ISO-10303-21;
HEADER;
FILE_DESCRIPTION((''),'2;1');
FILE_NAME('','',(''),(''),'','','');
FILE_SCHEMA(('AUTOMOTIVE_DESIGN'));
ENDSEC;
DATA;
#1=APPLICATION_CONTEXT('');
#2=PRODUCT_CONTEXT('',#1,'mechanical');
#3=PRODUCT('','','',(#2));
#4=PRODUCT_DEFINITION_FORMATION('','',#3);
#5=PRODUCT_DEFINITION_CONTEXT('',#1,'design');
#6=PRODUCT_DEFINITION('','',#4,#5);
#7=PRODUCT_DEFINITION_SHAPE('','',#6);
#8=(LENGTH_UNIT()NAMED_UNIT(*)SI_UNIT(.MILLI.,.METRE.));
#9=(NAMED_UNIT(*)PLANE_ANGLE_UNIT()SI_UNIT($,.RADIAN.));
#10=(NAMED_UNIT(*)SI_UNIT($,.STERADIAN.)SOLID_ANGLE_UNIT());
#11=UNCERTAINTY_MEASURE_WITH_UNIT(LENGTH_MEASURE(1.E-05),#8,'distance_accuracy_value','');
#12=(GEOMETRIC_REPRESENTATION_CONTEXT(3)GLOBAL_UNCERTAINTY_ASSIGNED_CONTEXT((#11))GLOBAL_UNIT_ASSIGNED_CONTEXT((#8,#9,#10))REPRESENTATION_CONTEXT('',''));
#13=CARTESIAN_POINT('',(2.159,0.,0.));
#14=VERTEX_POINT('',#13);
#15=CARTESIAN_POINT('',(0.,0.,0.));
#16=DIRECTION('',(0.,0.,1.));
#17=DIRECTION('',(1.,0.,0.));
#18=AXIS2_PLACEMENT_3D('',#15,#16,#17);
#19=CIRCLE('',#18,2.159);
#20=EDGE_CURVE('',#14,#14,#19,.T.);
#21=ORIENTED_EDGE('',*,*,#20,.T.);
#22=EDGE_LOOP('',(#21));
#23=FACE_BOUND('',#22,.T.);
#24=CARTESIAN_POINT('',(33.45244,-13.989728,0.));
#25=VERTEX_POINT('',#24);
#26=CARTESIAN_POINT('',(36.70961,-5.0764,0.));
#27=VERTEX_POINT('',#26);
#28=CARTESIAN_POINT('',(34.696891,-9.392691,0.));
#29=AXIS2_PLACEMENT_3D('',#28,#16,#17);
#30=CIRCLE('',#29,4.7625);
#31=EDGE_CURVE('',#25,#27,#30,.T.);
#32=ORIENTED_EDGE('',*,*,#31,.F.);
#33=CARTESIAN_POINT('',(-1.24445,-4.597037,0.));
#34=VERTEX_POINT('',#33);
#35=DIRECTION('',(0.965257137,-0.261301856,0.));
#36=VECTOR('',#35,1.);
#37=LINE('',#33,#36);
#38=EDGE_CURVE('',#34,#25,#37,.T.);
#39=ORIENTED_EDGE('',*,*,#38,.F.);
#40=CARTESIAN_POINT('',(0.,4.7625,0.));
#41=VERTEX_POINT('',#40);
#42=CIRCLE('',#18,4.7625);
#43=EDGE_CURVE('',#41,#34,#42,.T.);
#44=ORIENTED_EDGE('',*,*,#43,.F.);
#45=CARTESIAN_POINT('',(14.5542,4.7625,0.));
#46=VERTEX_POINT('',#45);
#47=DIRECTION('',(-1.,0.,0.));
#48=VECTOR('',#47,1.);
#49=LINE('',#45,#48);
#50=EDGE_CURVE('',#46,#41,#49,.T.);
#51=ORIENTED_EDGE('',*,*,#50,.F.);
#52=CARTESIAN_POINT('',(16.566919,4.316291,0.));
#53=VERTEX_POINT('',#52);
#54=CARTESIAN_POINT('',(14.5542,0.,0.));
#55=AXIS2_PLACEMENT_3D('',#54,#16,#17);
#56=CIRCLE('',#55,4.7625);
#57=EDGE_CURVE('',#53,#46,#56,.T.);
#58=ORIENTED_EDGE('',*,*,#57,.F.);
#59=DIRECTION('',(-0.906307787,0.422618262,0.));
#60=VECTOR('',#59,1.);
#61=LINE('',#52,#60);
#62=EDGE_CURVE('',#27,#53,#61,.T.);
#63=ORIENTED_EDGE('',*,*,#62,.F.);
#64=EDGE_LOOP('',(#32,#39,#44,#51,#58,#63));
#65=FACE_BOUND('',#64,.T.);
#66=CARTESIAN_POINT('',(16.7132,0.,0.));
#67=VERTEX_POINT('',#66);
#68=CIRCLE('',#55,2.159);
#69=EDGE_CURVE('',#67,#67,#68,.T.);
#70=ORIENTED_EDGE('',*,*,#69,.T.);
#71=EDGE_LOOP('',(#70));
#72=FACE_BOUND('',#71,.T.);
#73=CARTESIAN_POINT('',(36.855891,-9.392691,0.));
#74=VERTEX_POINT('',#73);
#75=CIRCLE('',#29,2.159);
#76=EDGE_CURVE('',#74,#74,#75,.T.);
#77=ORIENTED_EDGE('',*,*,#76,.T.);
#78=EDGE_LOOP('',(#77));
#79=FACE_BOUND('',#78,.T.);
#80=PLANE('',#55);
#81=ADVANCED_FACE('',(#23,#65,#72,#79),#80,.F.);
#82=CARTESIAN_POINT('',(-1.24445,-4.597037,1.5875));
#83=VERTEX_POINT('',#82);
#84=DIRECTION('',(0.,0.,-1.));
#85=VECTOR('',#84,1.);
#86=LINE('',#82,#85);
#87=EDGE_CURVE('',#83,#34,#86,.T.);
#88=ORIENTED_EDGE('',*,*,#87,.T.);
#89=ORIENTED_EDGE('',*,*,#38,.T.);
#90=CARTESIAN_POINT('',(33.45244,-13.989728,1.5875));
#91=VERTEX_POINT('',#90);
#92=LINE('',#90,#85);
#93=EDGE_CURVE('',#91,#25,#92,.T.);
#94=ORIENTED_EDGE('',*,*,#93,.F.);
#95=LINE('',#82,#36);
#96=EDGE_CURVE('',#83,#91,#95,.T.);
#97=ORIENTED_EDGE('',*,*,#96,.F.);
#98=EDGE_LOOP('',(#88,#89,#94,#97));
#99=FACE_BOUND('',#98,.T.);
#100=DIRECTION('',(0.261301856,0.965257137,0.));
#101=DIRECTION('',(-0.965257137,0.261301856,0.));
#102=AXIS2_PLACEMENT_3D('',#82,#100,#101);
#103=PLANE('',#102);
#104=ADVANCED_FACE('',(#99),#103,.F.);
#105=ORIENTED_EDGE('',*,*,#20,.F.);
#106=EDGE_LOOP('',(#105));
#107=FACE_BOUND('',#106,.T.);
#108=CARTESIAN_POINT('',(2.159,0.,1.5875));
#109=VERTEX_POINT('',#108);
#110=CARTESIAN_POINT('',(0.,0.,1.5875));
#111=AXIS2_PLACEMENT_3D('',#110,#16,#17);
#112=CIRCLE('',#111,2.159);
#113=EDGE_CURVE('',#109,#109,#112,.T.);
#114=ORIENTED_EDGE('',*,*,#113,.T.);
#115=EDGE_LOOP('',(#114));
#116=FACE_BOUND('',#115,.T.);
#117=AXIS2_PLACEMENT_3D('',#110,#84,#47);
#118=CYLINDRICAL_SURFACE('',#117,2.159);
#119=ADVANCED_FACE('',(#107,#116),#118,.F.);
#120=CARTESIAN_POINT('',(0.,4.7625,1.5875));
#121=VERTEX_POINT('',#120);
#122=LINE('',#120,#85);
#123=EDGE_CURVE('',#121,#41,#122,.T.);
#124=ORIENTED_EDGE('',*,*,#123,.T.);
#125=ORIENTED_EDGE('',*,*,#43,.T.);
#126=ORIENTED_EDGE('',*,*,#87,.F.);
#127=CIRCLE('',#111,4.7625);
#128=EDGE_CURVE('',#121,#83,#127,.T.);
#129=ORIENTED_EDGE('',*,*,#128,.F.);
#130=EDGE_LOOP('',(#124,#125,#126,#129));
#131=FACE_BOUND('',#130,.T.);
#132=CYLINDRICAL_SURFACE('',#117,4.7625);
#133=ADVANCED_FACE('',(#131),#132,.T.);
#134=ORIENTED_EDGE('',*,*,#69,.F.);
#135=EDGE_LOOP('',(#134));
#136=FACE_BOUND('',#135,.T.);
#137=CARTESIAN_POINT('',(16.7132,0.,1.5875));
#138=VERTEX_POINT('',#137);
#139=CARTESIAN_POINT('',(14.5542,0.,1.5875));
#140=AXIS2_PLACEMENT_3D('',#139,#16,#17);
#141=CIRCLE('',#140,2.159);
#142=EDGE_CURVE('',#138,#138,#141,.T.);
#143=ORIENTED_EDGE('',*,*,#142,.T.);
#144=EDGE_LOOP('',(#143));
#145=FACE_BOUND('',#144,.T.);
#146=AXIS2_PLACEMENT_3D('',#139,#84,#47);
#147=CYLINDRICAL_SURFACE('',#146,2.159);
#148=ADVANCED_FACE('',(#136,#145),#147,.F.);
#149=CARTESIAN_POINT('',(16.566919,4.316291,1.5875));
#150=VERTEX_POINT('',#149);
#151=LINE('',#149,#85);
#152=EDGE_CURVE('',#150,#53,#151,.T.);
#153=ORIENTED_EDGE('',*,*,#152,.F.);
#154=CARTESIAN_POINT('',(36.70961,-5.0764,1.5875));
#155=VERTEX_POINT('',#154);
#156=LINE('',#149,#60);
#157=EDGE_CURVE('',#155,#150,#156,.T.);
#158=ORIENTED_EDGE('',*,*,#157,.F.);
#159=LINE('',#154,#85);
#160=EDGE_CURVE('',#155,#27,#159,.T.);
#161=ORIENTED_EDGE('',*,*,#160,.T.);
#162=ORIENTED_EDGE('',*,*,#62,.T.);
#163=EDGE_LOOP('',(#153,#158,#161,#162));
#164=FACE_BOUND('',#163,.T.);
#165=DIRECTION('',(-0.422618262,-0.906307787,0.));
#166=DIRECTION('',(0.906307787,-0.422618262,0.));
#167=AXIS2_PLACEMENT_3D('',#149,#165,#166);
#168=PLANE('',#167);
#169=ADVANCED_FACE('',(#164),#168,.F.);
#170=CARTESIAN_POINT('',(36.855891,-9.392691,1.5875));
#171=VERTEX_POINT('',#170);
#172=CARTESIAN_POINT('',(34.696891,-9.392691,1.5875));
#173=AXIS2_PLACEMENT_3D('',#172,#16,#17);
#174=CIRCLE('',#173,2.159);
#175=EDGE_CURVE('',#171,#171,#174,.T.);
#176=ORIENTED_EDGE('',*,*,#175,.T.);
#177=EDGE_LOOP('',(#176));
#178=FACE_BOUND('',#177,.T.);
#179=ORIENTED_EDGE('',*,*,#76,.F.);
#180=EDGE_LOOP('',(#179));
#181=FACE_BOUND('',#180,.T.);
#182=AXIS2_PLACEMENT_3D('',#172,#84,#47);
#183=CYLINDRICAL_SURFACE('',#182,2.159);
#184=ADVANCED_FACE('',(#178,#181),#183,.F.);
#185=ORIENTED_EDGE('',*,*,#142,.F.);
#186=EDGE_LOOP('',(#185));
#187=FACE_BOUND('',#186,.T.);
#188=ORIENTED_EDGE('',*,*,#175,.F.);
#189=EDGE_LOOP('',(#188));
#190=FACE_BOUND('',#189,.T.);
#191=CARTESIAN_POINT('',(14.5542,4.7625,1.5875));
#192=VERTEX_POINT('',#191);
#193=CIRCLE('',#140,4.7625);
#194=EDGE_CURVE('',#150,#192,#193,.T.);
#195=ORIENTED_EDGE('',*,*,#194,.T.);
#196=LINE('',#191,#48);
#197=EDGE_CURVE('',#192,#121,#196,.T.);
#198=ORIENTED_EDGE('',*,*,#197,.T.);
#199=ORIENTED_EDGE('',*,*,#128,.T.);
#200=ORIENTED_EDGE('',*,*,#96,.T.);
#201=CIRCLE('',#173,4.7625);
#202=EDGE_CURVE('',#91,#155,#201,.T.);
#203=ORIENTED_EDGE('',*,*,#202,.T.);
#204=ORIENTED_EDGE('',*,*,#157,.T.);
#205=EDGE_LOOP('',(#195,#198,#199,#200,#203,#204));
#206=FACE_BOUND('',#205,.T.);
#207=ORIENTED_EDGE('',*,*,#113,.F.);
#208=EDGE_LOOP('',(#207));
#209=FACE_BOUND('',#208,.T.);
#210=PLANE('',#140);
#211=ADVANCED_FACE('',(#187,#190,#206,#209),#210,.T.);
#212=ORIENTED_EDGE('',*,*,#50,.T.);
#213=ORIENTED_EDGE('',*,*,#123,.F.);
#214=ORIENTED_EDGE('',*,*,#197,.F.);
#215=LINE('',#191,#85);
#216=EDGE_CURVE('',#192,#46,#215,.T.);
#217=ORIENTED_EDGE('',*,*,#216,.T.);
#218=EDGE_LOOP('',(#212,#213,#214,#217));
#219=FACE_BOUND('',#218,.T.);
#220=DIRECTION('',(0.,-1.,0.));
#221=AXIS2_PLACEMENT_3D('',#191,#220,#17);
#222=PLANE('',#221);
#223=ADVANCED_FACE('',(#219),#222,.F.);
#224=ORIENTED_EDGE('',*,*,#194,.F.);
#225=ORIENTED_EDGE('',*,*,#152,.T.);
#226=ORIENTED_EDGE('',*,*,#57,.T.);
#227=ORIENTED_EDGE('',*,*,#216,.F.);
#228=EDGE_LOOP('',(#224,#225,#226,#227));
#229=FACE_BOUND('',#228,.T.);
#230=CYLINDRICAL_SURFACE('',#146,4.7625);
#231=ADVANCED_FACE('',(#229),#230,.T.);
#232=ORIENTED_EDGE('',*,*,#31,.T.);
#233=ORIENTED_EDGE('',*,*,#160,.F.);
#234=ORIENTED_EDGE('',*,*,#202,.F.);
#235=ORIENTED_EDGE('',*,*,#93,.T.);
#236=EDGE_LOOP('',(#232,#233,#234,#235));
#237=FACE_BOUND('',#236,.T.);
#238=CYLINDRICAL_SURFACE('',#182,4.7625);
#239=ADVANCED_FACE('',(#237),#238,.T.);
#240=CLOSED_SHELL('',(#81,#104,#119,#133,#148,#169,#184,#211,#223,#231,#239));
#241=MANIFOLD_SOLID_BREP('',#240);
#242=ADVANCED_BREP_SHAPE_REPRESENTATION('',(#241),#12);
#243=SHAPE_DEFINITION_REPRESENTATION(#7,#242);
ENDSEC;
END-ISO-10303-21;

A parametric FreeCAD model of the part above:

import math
import FreeCAD as App
import Part
import Sketcher
Q = App.Units.Quantity

doc = App.newDocument("Part")
body = doc.addObject("PartDesign::Body", "Body")

# Sketch on XY plane
sketch1 = body.newObject("Sketcher::SketchObject", "Sketch")
sketch1.AttachmentSupport = (doc.getObject("XY_Plane"), [""])
sketch1.MapMode = "FlatFace"
sketch1.addGeometry([
    Part.LineSegment(App.Vector(36.7, -5.1, 0), App.Vector(16.6, 4.3, 0)),  # 0
    Part.ArcOfCircle(Part.Circle(App.Vector(14.6, 0, 0), App.Vector(0, 0, 1), 4.8), math.radians(65), math.radians(90)),  # 1
    Part.LineSegment(App.Vector(14.6, 4.8, 0), App.Vector(0, 4.8, 0)),  # 2
    Part.ArcOfCircle(Part.Circle(App.Vector(0, 0, 0), App.Vector(0, 0, 1), 4.8), math.radians(90), math.radians(255)),  # 3
    Part.LineSegment(App.Vector(-1.2, -4.6, 0), App.Vector(33.5, -14, 0)),  # 4
    Part.ArcOfCircle(Part.Circle(App.Vector(34.7, -9.4, 0), App.Vector(0, 0, 1), 4.8), math.radians(-105), math.radians(65)),  # 5
    Part.Circle(App.Vector(34.7, -9.4, 0), App.Vector(0, 0, 1), 2.2),  # 6
    Part.Circle(App.Vector(14.6, 0, 0), App.Vector(0, 0, 1), 2.2),  # 7
    Part.Circle(App.Vector(0, 0, 0), App.Vector(0, 0, 1), 2.2),  # 8
], False)
sketch1.addConstraint([
    Sketcher.Constraint("Tangent", 0, 2, 1, 1),
    Sketcher.Constraint("Tangent", 1, 2, 2, 1),
    Sketcher.Constraint("Tangent", 2, 2, 3, 1),
    Sketcher.Constraint("Tangent", 3, 2, 4, 1),
    Sketcher.Constraint("Tangent", 4, 2, 5, 1),
    Sketcher.Constraint("Tangent", 5, 2, 0, 1),
    Sketcher.Constraint("Horizontal", 2),
    Sketcher.Constraint("Coincident", 3, 3, -1, 1),
    Sketcher.Constraint("Coincident", 8, 3, -1, 1),
    Sketcher.Constraint("Coincident", 6, 3, 5, 3),
    Sketcher.Constraint("Coincident", 7, 3, 1, 3),
    Sketcher.Constraint("Equal", 1, 3),
    Sketcher.Constraint("Equal", 3, 5),
    Sketcher.Constraint("Equal", 6, 7),
    Sketcher.Constraint("Equal", 7, 8),
    Sketcher.Constraint("Diameter", 6, Q("0.17 in")),
    Sketcher.Constraint("Angle", 0, Q("155 deg")),
    Sketcher.Constraint("Radius", 1, Q("0.1875 in")),
    Sketcher.Constraint("DistanceX", 2, 2, 2, 1, Q("0.573 in")),
    Sketcher.Constraint("Distance", 0, Q("0.875 in")),
])
pad1 = body.newObject("PartDesign::Pad", "Pad")
pad1.Profile = sketch1
pad1.Length = Q("0.0625 in")

doc.recompute()
